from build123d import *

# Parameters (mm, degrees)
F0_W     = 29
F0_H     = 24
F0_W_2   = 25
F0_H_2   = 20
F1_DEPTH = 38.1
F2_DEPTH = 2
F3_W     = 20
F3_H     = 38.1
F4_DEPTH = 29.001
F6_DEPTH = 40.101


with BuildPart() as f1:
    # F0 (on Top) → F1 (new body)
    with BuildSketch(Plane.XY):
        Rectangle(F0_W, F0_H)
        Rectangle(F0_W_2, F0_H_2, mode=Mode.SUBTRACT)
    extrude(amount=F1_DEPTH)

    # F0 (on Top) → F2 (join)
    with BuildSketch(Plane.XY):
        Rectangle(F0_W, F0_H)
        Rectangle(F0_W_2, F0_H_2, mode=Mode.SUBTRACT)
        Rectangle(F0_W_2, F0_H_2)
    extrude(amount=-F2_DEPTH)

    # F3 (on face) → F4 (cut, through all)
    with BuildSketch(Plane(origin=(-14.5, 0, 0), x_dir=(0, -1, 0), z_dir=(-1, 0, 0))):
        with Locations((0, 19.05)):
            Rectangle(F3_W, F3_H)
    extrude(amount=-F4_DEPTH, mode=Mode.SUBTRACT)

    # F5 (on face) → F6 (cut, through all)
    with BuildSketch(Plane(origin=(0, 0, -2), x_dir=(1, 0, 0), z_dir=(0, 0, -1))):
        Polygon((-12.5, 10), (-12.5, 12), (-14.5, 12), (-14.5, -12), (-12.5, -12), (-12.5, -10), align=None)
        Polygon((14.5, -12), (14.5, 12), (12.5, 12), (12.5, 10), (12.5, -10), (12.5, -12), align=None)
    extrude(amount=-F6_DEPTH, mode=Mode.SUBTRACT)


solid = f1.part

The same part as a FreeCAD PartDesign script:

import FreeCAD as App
import Part
import Sketcher

V = App.Vector
Q = App.Units.Quantity

doc = App.newDocument("Part")
body = doc.addObject("PartDesign::Body", "Body")

# Sketch on XY plane
sketch1 = body.newObject("Sketcher::SketchObject", "Sketch")
sketch1.AttachmentSupport = (doc.getObject("XY_Plane"), [""])
sketch1.MapMode = "FlatFace"
sketch1.addGeometry([
    Part.LineSegment(V(-14, 12, 0), V(-14, -12, 0)),  # 0
    Part.LineSegment(V(-14, -12, 0), V(14, -12, 0)),  # 1
    Part.LineSegment(V(14, -12, 0), V(14, 12, 0)),  # 2
    Part.LineSegment(V(14, 12, 0), V(-14, 12, 0)),  # 3
    Part.LineSegment(V(12, -10, 0), V(-12, -10, 0)),  # 4
    Part.LineSegment(V(-12, -10, 0), V(-12, 10, 0)),  # 5
    Part.LineSegment(V(-12, 10, 0), V(12, 10, 0)),  # 6
    Part.LineSegment(V(12, 10, 0), V(12, -10, 0)),  # 7
], False)
sketch1.addConstraint([
    Sketcher.Constraint("Coincident", 0, 2, 1, 1),
    Sketcher.Constraint("Coincident", 1, 2, 2, 1),
    Sketcher.Constraint("Coincident", 2, 2, 3, 1),
    Sketcher.Constraint("Coincident", 3, 2, 0, 1),
    Sketcher.Constraint("Coincident", 4, 2, 5, 1),
    Sketcher.Constraint("Coincident", 5, 2, 6, 1),
    Sketcher.Constraint("Coincident", 6, 2, 7, 1),
    Sketcher.Constraint("Coincident", 7, 2, 4, 1),
    Sketcher.Constraint("Vertical", 0),
    Sketcher.Constraint("Horizontal", 1),
    Sketcher.Constraint("Vertical", 2),
    Sketcher.Constraint("Horizontal", 3),
    Sketcher.Constraint("Horizontal", 4),
    Sketcher.Constraint("Vertical", 5),
    Sketcher.Constraint("Horizontal", 6),
    Sketcher.Constraint("Vertical", 7),
    Sketcher.Constraint("Symmetric", 0, 2, 2, 2, -1, 1),
    Sketcher.Constraint("Symmetric", 4, 2, 6, 2, -1, 1),
    Sketcher.Constraint("DistanceX", 1, 1, 1, 2, Q("29 mm")),
    Sketcher.Constraint("DistanceX", 4, 2, 4, 1, Q("25 mm")),
    Sketcher.Constraint("DistanceY", 0, 2, 0, 1, Q("24 mm")),
    Sketcher.Constraint("DistanceY", 5, 1, 5, 2, Q("20 mm")),
])
pad1 = body.newObject("PartDesign::Pad", "Pad")
pad1.Profile = sketch1
pad1.Length = 38.1

# Sketch on XY plane
sketch2 = body.newObject("Sketcher::SketchObject", "Sketch001")
sketch2.AttachmentSupport = (doc.getObject("XY_Plane"), [""])
sketch2.MapMode = "FlatFace"
sketch2.addGeometry([
    Part.LineSegment(V(-14, 12, 0), V(-14, -12, 0)),
    Part.LineSegment(V(-14, -12, 0), V(14, -12, 0)),
    Part.LineSegment(V(14, -12, 0), V(14, 12, 0)),
    Part.LineSegment(V(14, 12, 0), V(-14, 12, 0)),
], False)
sketch2.addConstraint([
    Sketcher.Constraint("Coincident", 0, 2, 1, 1),
    Sketcher.Constraint("Coincident", 1, 2, 2, 1),
    Sketcher.Constraint("Coincident", 2, 2, 3, 1),
    Sketcher.Constraint("Coincident", 3, 2, 0, 1),
    Sketcher.Constraint("Vertical", 0),
    Sketcher.Constraint("Horizontal", 1),
    Sketcher.Constraint("Vertical", 2),
    Sketcher.Constraint("Horizontal", 3),
    Sketcher.Constraint("Symmetric", 0, 2, 2, 2, -1, 1),
    Sketcher.Constraint("DistanceX", 1, 1, 1, 2, Q("29 mm")),
    Sketcher.Constraint("DistanceY", 0, 2, 0, 1, Q("24 mm")),
])
pad2 = body.newObject("PartDesign::Pad", "Pad001")
pad2.Profile = sketch2
pad2.Length = 2
pad2.Reversed = True

# Sketch on YZ plane
sketch3 = body.newObject("Sketcher::SketchObject", "Sketch002")
sketch3.AttachmentSupport = (doc.getObject("YZ_Plane"), [""])
sketch3.MapMode = "FlatFace"
sketch3.AttachmentOffset = App.Placement(V(0, 0, -14.5), App.Rotation())
sketch3.addGeometry([
    Part.LineSegment(V(10, 38, 0), V(10, 0, 0)),
    Part.LineSegment(V(10, 0, 0), V(-10, 0, 0)),
    Part.LineSegment(V(-10, 0, 0), V(-10, 38, 0)),
    Part.LineSegment(V(-10, 38, 0), V(10, 38, 0)),
], False)
sketch3.addConstraint([
    Sketcher.Constraint("Coincident", 0, 2, 1, 1),
    Sketcher.Constraint("Coincident", 1, 2, 2, 1),
    Sketcher.Constraint("Coincident", 2, 2, 3, 1),
    Sketcher.Constraint("Coincident", 3, 2, 0, 1),
    Sketcher.Constraint("Vertical", 0),
    Sketcher.Constraint("Horizontal", 1),
    Sketcher.Constraint("Vertical", 2),
    Sketcher.Constraint("Horizontal", 3),
    Sketcher.Constraint("Symmetric", 0, 2, 1, 2, -1, 1),
    Sketcher.Constraint("DistanceX", 1, 2, 1, 1, Q("20 mm")),
    Sketcher.Constraint("DistanceY", 0, 2, 0, 1, Q("38.1 mm")),
])
pocket1 = body.newObject("PartDesign::Pocket", "Pocket")
pocket1.Profile = sketch3
pocket1.Type = "ThroughAll"
pocket1.Reversed = True

# Sketch on XY plane
sketch4 = body.newObject("Sketcher::SketchObject", "Sketch003")
sketch4.AttachmentSupport = (doc.getObject("XY_Plane"), [""])
sketch4.MapMode = "FlatFace"
sketch4.AttachmentOffset = App.Placement(V(0, 0, -2), App.Rotation())
sketch4.addGeometry([
    Part.LineSegment(V(-12.5, -12, 0), V(-14.5, -12, 0)),  # 0
    Part.LineSegment(V(-14.5, -12, 0), V(-14.5, 12, 0)),  # 1
    Part.LineSegment(V(-14.5, 12, 0), V(-12.5, 12, 0)),  # 2
    Part.LineSegment(V(-12.5, 12, 0), V(-12.5, -12, 0)),  # 3
    Part.LineSegment(V(14.5, 12, 0), V(14.5, -12, 0)),  # 4
    Part.LineSegment(V(14.5, -12, 0), V(12.5, -12, 0)),  # 5
    Part.LineSegment(V(12.5, -12, 0), V(12.5, 12, 0)),  # 6
    Part.LineSegment(V(12.5, 12, 0), V(14.5, 12, 0)),  # 7
], False)
sketch4.addConstraint([
    Sketcher.Constraint("Coincident", 0, 2, 1, 1),
    Sketcher.Constraint("Coincident", 1, 2, 2, 1),
    Sketcher.Constraint("Coincident", 2, 2, 3, 1),
    Sketcher.Constraint("Coincident", 3, 2, 0, 1),
    Sketcher.Constraint("Coincident", 4, 2, 5, 1),
    Sketcher.Constraint("Coincident", 5, 2, 6, 1),
    Sketcher.Constraint("Coincident", 6, 2, 7, 1),
    Sketcher.Constraint("Coincident", 7, 2, 4, 1),
    Sketcher.Constraint("Horizontal", 0),
    Sketcher.Constraint("Vertical", 1),
    Sketcher.Constraint("Horizontal", 2),
    Sketcher.Constraint("Vertical", 3),
    Sketcher.Constraint("Vertical", 4),
    Sketcher.Constraint("Horizontal", 5),
    Sketcher.Constraint("Vertical", 6),
    Sketcher.Constraint("Horizontal", 7),
    Sketcher.Constraint("Symmetric", 1, 2, 4, 2, -1, 1),
    Sketcher.Constraint("Symmetric", 3, 2, 6, 2, -1, 1),
    Sketcher.Constraint("Horizontal", 3, 2, 4, 2),
    Sketcher.Constraint("DistanceX", 0, 2, 0, 1, Q("2 mm")),
    Sketcher.Constraint("DistanceY", 1, 1, 1, 2, Q("24 mm")),
    Sketcher.Constraint("DistanceX", 3, 2, 4, 2, Q("27 mm")),
])
pocket2 = body.newObject("PartDesign::Pocket", "Pocket001")
pocket2.Profile = sketch4
pocket2.Type = "ThroughAll"
pocket2.Reversed = True

doc.recompute()
